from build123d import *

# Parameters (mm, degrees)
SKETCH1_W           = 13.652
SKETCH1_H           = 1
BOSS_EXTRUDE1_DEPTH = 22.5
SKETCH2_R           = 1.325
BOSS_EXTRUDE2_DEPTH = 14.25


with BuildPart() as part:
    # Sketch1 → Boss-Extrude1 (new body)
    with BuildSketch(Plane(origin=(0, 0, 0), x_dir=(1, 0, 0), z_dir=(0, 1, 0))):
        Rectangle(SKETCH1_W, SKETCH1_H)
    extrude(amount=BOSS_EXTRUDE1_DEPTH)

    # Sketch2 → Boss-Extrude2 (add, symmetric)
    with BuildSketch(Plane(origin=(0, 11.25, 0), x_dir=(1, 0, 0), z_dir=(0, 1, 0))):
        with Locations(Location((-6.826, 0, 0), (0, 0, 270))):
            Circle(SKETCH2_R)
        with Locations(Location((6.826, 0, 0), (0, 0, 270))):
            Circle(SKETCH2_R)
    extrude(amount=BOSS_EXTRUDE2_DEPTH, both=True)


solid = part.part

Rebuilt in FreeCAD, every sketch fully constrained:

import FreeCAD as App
import Part
import Sketcher

doc = App.newDocument("Part")
params = doc.addObject("Spreadsheet::Sheet", "Params")
for row, (alias, value) in enumerate([
    ("sketch1_height", "1 mm"),
    ("pad1_length", "22.5 mm"),
    ("sketch2_diameter", "2.65 mm"),
    ("pad2_length", "28.5 mm"),
], start=1):
    params.set(f"A{row}", alias)
    params.set(f"B{row}", "=" + value)
    params.setAlias(f"B{row}", alias)

body = doc.addObject("PartDesign::Body", "Body")

# Sketch on XZ plane
sketch1 = body.newObject("Sketcher::SketchObject", "Sketch")
sketch1.AttachmentSupport = (doc.getObject("XZ_Plane"), [""])
sketch1.MapMode = "FlatFace"
sketch1.addGeometry([
    Part.LineSegment(App.Vector(-6.8, -0.5, 0), App.Vector(-6.8, 0.5, 0)),
    Part.LineSegment(App.Vector(-6.8, 0.5, 0), App.Vector(6.8, 0.5, 0)),
    Part.LineSegment(App.Vector(6.8, 0.5, 0), App.Vector(6.8, -0.5, 0)),
    Part.LineSegment(App.Vector(6.8, -0.5, 0), App.Vector(-6.8, -0.5, 0)),
], False)
sketch1.addConstraint([
    Sketcher.Constraint("Coincident", 0, 2, 1, 1),
    Sketcher.Constraint("Coincident", 1, 2, 2, 1),
    Sketcher.Constraint("Coincident", 2, 2, 3, 1),
    Sketcher.Constraint("Coincident", 3, 2, 0, 1),
    Sketcher.Constraint("Vertical", 0),
    Sketcher.Constraint("Horizontal", 1),
    Sketcher.Constraint("Vertical", 2),
    Sketcher.Constraint("Horizontal", 3),
    Sketcher.Constraint("Symmetric", 0, 2, 2, 2, -1, 1),
    Sketcher.Constraint("DistanceY", 0, 1, 0, 2, 1.0),
    Sketcher.Constraint("DistanceX", 1, 1, 1, 2, 13.652),
])
sketch1.setExpression("Constraints[9]", "Params.sketch1_height")
pad1 = body.newObject("PartDesign::Pad", "Pad")
pad1.Profile = sketch1
pad1.setExpression("Length", "Params.pad1_length")
pad1.Reversed = True

# Sketch on XZ plane
sketch2 = body.newObject("Sketcher::SketchObject", "Sketch001")
sketch2.AttachmentSupport = (doc.getObject("XZ_Plane"), [""])
sketch2.MapMode = "FlatFace"
sketch2.AttachmentOffset = App.Placement(App.Vector(0, 0, -11.25), App.Rotation())
sketch2.addGeometry([
    Part.Circle(App.Vector(-6.8, 0, 0), App.Vector(0, 0, 1), 1.3),
    Part.Circle(App.Vector(6.8, 0, 0), App.Vector(0, 0, 1), 1.3),
], False)
sketch2.addConstraint([
    Sketcher.Constraint("Equal", 0, 1),
    Sketcher.Constraint("Symmetric", 0, 3, 1, 3, -1, 1),
    Sketcher.Constraint("PointOnObject", 0, 3, -1),
    Sketcher.Constraint("Diameter", 0, 2.65),
    Sketcher.Constraint("DistanceX", 0, 3, -1, 1, 6.826),
])
sketch2.setExpression("Constraints[3]", "Params.sketch2_diameter")
pad2 = body.newObject("PartDesign::Pad", "Pad001")
pad2.Profile = sketch2
pad2.setExpression("Length", "Params.pad2_length")
pad2.Midplane = True

doc.recompute()
